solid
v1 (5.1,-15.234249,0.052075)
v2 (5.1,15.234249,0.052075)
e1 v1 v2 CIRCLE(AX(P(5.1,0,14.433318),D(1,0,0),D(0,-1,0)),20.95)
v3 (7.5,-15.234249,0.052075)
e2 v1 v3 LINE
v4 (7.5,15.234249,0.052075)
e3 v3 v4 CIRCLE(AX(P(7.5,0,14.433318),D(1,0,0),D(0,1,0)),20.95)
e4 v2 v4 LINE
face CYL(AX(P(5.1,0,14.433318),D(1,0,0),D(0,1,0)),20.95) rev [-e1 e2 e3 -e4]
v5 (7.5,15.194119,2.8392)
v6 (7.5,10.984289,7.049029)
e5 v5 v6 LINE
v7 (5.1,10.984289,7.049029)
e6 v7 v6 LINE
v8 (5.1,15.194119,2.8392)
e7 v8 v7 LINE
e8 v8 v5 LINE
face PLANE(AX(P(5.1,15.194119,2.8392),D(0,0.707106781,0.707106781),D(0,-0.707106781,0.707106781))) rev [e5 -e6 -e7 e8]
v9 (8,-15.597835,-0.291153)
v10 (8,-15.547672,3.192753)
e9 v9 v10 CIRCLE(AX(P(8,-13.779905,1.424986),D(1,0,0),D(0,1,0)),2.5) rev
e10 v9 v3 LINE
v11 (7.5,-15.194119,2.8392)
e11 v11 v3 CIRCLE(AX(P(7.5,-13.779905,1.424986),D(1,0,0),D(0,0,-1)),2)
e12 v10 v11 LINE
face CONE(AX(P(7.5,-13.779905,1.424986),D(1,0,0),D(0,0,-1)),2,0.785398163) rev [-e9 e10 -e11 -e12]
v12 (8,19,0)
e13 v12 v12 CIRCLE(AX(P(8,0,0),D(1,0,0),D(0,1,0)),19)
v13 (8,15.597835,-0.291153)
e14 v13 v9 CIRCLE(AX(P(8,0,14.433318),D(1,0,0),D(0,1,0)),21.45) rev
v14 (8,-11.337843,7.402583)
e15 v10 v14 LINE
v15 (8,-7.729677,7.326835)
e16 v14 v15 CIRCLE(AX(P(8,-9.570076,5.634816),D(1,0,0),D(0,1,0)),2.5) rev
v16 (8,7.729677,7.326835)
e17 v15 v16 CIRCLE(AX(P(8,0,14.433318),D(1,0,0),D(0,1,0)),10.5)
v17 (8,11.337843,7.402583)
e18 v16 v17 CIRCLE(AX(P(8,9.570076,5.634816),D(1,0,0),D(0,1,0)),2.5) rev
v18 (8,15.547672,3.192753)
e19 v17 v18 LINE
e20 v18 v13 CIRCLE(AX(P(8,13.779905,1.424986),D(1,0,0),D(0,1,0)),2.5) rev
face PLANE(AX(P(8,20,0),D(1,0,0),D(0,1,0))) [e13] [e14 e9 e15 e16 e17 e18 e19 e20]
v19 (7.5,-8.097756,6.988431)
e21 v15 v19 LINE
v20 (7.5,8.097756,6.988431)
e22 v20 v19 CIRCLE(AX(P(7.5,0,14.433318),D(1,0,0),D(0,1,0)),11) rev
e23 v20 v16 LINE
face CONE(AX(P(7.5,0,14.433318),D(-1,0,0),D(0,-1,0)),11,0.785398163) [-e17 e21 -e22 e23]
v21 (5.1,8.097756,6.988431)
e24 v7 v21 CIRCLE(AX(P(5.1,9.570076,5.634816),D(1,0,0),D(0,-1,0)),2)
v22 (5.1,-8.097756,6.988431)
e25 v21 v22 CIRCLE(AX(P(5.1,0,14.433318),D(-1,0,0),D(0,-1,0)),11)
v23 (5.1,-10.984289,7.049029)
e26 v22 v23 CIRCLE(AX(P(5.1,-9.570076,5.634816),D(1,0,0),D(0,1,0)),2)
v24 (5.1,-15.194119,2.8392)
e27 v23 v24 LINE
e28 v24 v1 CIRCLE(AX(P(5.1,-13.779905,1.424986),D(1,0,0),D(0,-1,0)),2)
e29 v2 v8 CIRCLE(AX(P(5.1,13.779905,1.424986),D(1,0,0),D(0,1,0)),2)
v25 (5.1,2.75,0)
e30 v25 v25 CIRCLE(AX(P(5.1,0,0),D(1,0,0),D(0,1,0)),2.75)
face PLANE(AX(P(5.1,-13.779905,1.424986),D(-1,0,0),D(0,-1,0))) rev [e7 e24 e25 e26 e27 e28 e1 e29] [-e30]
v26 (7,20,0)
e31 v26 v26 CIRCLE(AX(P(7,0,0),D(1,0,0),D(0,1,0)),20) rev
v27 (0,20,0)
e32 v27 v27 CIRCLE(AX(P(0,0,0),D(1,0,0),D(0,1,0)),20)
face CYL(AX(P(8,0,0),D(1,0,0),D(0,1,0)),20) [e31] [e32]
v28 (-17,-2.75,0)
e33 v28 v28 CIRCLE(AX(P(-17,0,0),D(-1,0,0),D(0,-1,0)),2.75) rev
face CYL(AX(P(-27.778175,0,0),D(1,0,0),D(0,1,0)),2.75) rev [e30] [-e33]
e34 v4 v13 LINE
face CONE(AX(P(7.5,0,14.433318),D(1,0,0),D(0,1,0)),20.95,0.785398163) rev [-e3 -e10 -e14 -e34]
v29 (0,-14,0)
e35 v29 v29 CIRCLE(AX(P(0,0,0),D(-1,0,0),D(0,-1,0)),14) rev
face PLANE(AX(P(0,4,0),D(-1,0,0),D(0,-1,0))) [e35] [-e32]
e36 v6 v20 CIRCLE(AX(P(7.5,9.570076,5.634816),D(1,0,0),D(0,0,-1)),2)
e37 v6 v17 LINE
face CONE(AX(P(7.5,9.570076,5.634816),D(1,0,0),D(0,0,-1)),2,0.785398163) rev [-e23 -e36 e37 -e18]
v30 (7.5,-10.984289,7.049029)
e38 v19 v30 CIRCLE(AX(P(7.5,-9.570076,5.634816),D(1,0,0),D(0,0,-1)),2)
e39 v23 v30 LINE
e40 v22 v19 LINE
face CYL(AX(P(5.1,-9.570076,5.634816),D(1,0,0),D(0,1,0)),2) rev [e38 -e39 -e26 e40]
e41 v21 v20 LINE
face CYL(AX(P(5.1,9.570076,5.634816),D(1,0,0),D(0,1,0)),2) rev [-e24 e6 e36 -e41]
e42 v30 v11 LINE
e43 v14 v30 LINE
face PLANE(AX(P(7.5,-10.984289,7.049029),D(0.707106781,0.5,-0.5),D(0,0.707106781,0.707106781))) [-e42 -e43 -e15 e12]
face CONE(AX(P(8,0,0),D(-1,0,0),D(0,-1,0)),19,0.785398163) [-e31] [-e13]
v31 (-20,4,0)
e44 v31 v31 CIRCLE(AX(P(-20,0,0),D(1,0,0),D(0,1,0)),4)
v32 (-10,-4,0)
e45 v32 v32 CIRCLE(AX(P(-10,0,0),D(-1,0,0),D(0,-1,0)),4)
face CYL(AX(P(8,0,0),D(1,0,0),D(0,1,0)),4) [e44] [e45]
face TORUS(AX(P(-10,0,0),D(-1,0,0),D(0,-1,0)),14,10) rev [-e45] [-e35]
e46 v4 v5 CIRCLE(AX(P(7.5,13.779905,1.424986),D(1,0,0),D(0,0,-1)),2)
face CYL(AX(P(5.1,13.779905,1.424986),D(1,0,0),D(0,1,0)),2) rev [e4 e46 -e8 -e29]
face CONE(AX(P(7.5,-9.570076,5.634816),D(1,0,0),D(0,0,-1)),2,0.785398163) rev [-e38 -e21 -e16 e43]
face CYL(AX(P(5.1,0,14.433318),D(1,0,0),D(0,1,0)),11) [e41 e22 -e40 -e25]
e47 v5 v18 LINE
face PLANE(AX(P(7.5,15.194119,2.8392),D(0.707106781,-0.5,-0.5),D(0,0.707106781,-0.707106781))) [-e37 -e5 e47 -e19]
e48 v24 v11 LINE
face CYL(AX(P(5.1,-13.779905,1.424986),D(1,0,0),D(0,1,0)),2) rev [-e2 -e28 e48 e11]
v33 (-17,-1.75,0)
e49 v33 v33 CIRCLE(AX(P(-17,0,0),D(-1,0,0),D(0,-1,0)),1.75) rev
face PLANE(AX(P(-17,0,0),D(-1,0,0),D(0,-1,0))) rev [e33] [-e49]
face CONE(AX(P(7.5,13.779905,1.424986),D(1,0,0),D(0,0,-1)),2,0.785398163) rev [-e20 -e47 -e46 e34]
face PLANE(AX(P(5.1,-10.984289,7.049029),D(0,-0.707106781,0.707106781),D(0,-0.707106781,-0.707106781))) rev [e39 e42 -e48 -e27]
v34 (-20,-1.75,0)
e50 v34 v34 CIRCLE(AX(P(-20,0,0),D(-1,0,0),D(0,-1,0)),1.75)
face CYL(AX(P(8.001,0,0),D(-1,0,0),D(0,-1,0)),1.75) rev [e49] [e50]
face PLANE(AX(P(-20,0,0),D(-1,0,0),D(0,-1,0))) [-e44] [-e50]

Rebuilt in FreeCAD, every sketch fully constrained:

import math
import FreeCAD as App
import Part
import Sketcher

V = App.Vector
Q = App.Units.Quantity


def edges_at(feature, points):
    """Names of the edges that pass closest to the given points."""
    edges = feature.Shape.Edges
    near = lambda p: min(range(len(edges)), key=lambda i: edges[i].distToShape(Part.Vertex(*p))[0])
    return sorted({f"Edge{near(p) + 1}" for p in points})

doc = App.newDocument("Part")
params = doc.addObject("Spreadsheet::Sheet", "Params")
for row, (alias, value) in enumerate([
    ("sketch1_width", "28 mm"),
    ("sketch1_width2", "8 mm"),
    ("sketch1_height", "4 mm"),
    ("revolution_angle", "360 deg"),
    ("sketch2_radius", "2 mm"),
    ("sketch2_radius2", "11 mm"),
    ("sketch2_radius3", "20.95 mm"),
    ("pocket1_length", "2.9 mm"),
    ("fillet_radius", "10 mm"),
    ("sketch3_diameter", "3.5 mm"),
    ("sketch4_diameter", "5.5 mm"),
    ("pocket3_length", "22.1 mm"),
    ("chamfer_size", "1 mm"),
    ("chamfer2_size", "0.5 mm"),
], start=1):
    params.set(f"A{row}", alias)
    params.set(f"B{row}", "=" + value)
    params.setAlias(f"B{row}", alias)

body = doc.addObject("PartDesign::Body", "Body")

sketch1 = body.newObject("Sketcher::SketchObject", "Sketch")
sketch1.AttachmentSupport = (doc.getObject("XY_Plane"), [""])
sketch1.MapMode = "FlatFace"
sketch1.addGeometry([
    Part.LineSegment(V(-20, 4, 0), V(-20, 0, 0)),
    Part.LineSegment(V(-20, 0, 0), V(8, 0, 0)),
    Part.LineSegment(V(8, 0, 0), V(8, 20, 0)),
    Part.LineSegment(V(8, 20, 0), V(0, 20, 0)),
    Part.LineSegment(V(0, 20, 0), V(0, 4, 0)),
    Part.LineSegment(V(0, 4, 0), V(-20, 4, 0)),
], False)
sketch1.addConstraint([
    Sketcher.Constraint("Coincident", 0, 2, 1, 1),
    Sketcher.Constraint("Coincident", 1, 2, 2, 1),
    Sketcher.Constraint("Coincident", 2, 2, 3, 1),
    Sketcher.Constraint("Coincident", 3, 2, 4, 1),
    Sketcher.Constraint("Coincident", 4, 2, 5, 1),
    Sketcher.Constraint("Coincident", 5, 2, 0, 1),
    Sketcher.Constraint("Vertical", 0),
    Sketcher.Constraint("Horizontal", 1),
    Sketcher.Constraint("Vertical", 2),
    Sketcher.Constraint("Horizontal", 3),
    Sketcher.Constraint("Vertical", 4),
    Sketcher.Constraint("Horizontal", 5),
    Sketcher.Constraint("PointOnObject", 0, 2, -1),
    Sketcher.Constraint("PointOnObject", 3, 2, -2),
    Sketcher.Constraint("Equal", 5, 2),
    Sketcher.Constraint("DistanceX", 1, 1, 1, 2, Q("28 mm")),
    Sketcher.Constraint("DistanceX", 3, 2, 3, 1, Q("8 mm")),
    Sketcher.Constraint("DistanceY", 0, 2, 0, 1, Q("4 mm")),
])
sketch1.setExpression("Constraints[15]", "Params.sketch1_width")
sketch1.setExpression("Constraints[16]", "Params.sketch1_width2")
sketch1.setExpression("Constraints[17]", "Params.sketch1_height")
revolution = body.newObject("PartDesign::Revolution", "Revolution")
revolution.Profile = sketch1
revolution.ReferenceAxis = (sketch1, ["H_Axis"])
revolution.setExpression("Angle", "Params.revolution_angle")

sketch2 = body.newObject("Sketcher::SketchObject", "Sketch001")
sketch2.AttachmentSupport = (doc.getObject("YZ_Plane"), [""])
sketch2.MapMode = "FlatFace"
sketch2.AttachmentOffset = App.Placement(V(0, 0, 8), App.Rotation())
sketch2.addGeometry([
    Part.LineSegment(V(15.194119, 2.8392, 0), V(10.984289, 7.049029, 0)),
    Part.ArcOfCircle(Part.Circle(V(9.570076, 5.634816, 0), V(0, 0, 1), 2), math.radians(45), math.radians(137.405298)),
    Part.ArcOfCircle(Part.Circle(V(0, 14.433318, 0), V(0, 0, 1), 11), math.radians(-137.405298), math.radians(-42.594702)),
    Part.ArcOfCircle(Part.Circle(V(-9.570076, 5.634816, 0), V(0, 0, 1), 2), math.radians(42.594702), math.radians(135)),
    Part.LineSegment(V(-10.984289, 7.049029, 0), V(-15.194119, 2.8392, 0)),
    Part.ArcOfCircle(Part.Circle(V(-13.779905, 1.424986, 0), V(0, 0, 1), 2), math.radians(135), math.radians(223.350184)),
    Part.ArcOfCircle(Part.Circle(V(0, 14.433318, 0), V(0, 0, 1), 20.95), math.radians(-136.649816), math.radians(-43.350184)),
    Part.ArcOfCircle(Part.Circle(V(13.779905, 1.424986, 0), V(0, 0, 1), 2), math.radians(-43.350184), math.radians(45)),
], False)
sketch2.addConstraint([
    Sketcher.Constraint("Tangent", 0, 2, 1, 1),
    Sketcher.Constraint("Tangent", 1, 2, 2, 2),
    Sketcher.Constraint("Tangent", 2, 1, 3, 1),
    Sketcher.Constraint("Tangent", 3, 2, 4, 1),
    Sketcher.Constraint("Tangent", 4, 2, 5, 1),
    Sketcher.Constraint("Tangent", 5, 2, 6, 1),
    Sketcher.Constraint("Tangent", 6, 2, 7, 1),
    Sketcher.Constraint("Tangent", 7, 2, 0, 1),
    Sketcher.Constraint("Coincident", 6, 3, 2, 3),
    Sketcher.Constraint("Equal", 1, 3),
    Sketcher.Constraint("Equal", 3, 5),
    Sketcher.Constraint("Equal", 5, 7),
    Sketcher.Constraint("Symmetric", 1, 3, 3, 3, -2),
    Sketcher.Constraint("Perpendicular", 0, 4),
    Sketcher.Constraint("Horizontal", 5, 3, 7, 3),
    Sketcher.Constraint("Radius", 1, Q("2 mm")),
    Sketcher.Constraint("Radius", 2, Q("11 mm")),
    Sketcher.Constraint("Radius", 6, Q("20.95 mm")),
    Sketcher.Constraint("Distance", 0, Q("5.953598 mm")),
    Sketcher.Constraint("DistanceY", -1, 1, 4, 2, Q("2.8392 mm")),
])
sketch2.setExpression("Constraints[15]", "Params.sketch2_radius")
sketch2.setExpression("Constraints[16]", "Params.sketch2_radius2")
sketch2.setExpression("Constraints[17]", "Params.sketch2_radius3")
pocket1 = body.newObject("PartDesign::Pocket", "Pocket")
pocket1.Profile = sketch2
pocket1.setExpression("Length", "Params.pocket1_length")
doc.recompute()

fillet = body.newObject("PartDesign::Fillet", "Fillet")
fillet.Base = (pocket1, edges_at(pocket1, [(0, -4, 0)]))
fillet.setExpression("Radius", "Params.fillet_radius")

sketch3 = body.newObject("Sketcher::SketchObject", "Sketch002")
sketch3.AttachmentSupport = (doc.getObject("YZ_Plane"), [""])
sketch3.MapMode = "FlatFace"
sketch3.AttachmentOffset = App.Placement(V(0, 0, -20), App.Rotation())
sketch3.addGeometry(Part.Circle(V(0, 0, 0), V(0, 0, 1), 1.8), False)
sketch3.addConstraint([
    Sketcher.Constraint("Coincident", 0, 3, -1, 1),
    Sketcher.Constraint("Diameter", 0, Q("3.5 mm")),
])
sketch3.setExpression("Constraints[1]", "Params.sketch3_diameter")
pocket2 = body.newObject("PartDesign::Pocket", "Pocket001")
pocket2.Profile = sketch3
pocket2.Type = "UpToFirst"
pocket2.Reversed = True

sketch4 = body.newObject("Sketcher::SketchObject", "Sketch003")
sketch4.AttachmentSupport = (doc.getObject("YZ_Plane"), [""])
sketch4.MapMode = "FlatFace"
sketch4.AttachmentOffset = App.Placement(V(0, 0, 5.1), App.Rotation())
sketch4.addGeometry(Part.Circle(V(0, 0, 0), V(0, 0, 1), 2.8), False)
sketch4.addConstraint([
    Sketcher.Constraint("Coincident", 0, 3, -1, 1),
    Sketcher.Constraint("Diameter", 0, Q("5.5 mm")),
])
sketch4.setExpression("Constraints[1]", "Params.sketch4_diameter")
pocket3 = body.newObject("PartDesign::Pocket", "Pocket002")
pocket3.Profile = sketch4
pocket3.setExpression("Length", "Params.pocket3_length")
doc.recompute()

chamfer = body.newObject("PartDesign::Chamfer", "Chamfer")
chamfer.Base = (pocket3, edges_at(pocket3, [(8, -20, 0)]))
chamfer.setExpression("Size", "Params.chamfer_size")
doc.recompute()

chamfer2 = body.newObject("PartDesign::Chamfer", "Chamfer001")
chamfer2.Base = (chamfer, edges_at(chamfer, [
    (8, -15.78, 1.454),
    (8, 0, -6.517),
    (8, 15.78, 1.454),
    (8, 13.089, 4.944),
    (8, 9.528, 7.634),
    (8, 0, 3.433),
    (8, -9.528, 7.634),
    (8, -13.089, 4.944),
]))
chamfer2.setExpression("Size", "Params.chamfer2_size")

doc.recompute()
